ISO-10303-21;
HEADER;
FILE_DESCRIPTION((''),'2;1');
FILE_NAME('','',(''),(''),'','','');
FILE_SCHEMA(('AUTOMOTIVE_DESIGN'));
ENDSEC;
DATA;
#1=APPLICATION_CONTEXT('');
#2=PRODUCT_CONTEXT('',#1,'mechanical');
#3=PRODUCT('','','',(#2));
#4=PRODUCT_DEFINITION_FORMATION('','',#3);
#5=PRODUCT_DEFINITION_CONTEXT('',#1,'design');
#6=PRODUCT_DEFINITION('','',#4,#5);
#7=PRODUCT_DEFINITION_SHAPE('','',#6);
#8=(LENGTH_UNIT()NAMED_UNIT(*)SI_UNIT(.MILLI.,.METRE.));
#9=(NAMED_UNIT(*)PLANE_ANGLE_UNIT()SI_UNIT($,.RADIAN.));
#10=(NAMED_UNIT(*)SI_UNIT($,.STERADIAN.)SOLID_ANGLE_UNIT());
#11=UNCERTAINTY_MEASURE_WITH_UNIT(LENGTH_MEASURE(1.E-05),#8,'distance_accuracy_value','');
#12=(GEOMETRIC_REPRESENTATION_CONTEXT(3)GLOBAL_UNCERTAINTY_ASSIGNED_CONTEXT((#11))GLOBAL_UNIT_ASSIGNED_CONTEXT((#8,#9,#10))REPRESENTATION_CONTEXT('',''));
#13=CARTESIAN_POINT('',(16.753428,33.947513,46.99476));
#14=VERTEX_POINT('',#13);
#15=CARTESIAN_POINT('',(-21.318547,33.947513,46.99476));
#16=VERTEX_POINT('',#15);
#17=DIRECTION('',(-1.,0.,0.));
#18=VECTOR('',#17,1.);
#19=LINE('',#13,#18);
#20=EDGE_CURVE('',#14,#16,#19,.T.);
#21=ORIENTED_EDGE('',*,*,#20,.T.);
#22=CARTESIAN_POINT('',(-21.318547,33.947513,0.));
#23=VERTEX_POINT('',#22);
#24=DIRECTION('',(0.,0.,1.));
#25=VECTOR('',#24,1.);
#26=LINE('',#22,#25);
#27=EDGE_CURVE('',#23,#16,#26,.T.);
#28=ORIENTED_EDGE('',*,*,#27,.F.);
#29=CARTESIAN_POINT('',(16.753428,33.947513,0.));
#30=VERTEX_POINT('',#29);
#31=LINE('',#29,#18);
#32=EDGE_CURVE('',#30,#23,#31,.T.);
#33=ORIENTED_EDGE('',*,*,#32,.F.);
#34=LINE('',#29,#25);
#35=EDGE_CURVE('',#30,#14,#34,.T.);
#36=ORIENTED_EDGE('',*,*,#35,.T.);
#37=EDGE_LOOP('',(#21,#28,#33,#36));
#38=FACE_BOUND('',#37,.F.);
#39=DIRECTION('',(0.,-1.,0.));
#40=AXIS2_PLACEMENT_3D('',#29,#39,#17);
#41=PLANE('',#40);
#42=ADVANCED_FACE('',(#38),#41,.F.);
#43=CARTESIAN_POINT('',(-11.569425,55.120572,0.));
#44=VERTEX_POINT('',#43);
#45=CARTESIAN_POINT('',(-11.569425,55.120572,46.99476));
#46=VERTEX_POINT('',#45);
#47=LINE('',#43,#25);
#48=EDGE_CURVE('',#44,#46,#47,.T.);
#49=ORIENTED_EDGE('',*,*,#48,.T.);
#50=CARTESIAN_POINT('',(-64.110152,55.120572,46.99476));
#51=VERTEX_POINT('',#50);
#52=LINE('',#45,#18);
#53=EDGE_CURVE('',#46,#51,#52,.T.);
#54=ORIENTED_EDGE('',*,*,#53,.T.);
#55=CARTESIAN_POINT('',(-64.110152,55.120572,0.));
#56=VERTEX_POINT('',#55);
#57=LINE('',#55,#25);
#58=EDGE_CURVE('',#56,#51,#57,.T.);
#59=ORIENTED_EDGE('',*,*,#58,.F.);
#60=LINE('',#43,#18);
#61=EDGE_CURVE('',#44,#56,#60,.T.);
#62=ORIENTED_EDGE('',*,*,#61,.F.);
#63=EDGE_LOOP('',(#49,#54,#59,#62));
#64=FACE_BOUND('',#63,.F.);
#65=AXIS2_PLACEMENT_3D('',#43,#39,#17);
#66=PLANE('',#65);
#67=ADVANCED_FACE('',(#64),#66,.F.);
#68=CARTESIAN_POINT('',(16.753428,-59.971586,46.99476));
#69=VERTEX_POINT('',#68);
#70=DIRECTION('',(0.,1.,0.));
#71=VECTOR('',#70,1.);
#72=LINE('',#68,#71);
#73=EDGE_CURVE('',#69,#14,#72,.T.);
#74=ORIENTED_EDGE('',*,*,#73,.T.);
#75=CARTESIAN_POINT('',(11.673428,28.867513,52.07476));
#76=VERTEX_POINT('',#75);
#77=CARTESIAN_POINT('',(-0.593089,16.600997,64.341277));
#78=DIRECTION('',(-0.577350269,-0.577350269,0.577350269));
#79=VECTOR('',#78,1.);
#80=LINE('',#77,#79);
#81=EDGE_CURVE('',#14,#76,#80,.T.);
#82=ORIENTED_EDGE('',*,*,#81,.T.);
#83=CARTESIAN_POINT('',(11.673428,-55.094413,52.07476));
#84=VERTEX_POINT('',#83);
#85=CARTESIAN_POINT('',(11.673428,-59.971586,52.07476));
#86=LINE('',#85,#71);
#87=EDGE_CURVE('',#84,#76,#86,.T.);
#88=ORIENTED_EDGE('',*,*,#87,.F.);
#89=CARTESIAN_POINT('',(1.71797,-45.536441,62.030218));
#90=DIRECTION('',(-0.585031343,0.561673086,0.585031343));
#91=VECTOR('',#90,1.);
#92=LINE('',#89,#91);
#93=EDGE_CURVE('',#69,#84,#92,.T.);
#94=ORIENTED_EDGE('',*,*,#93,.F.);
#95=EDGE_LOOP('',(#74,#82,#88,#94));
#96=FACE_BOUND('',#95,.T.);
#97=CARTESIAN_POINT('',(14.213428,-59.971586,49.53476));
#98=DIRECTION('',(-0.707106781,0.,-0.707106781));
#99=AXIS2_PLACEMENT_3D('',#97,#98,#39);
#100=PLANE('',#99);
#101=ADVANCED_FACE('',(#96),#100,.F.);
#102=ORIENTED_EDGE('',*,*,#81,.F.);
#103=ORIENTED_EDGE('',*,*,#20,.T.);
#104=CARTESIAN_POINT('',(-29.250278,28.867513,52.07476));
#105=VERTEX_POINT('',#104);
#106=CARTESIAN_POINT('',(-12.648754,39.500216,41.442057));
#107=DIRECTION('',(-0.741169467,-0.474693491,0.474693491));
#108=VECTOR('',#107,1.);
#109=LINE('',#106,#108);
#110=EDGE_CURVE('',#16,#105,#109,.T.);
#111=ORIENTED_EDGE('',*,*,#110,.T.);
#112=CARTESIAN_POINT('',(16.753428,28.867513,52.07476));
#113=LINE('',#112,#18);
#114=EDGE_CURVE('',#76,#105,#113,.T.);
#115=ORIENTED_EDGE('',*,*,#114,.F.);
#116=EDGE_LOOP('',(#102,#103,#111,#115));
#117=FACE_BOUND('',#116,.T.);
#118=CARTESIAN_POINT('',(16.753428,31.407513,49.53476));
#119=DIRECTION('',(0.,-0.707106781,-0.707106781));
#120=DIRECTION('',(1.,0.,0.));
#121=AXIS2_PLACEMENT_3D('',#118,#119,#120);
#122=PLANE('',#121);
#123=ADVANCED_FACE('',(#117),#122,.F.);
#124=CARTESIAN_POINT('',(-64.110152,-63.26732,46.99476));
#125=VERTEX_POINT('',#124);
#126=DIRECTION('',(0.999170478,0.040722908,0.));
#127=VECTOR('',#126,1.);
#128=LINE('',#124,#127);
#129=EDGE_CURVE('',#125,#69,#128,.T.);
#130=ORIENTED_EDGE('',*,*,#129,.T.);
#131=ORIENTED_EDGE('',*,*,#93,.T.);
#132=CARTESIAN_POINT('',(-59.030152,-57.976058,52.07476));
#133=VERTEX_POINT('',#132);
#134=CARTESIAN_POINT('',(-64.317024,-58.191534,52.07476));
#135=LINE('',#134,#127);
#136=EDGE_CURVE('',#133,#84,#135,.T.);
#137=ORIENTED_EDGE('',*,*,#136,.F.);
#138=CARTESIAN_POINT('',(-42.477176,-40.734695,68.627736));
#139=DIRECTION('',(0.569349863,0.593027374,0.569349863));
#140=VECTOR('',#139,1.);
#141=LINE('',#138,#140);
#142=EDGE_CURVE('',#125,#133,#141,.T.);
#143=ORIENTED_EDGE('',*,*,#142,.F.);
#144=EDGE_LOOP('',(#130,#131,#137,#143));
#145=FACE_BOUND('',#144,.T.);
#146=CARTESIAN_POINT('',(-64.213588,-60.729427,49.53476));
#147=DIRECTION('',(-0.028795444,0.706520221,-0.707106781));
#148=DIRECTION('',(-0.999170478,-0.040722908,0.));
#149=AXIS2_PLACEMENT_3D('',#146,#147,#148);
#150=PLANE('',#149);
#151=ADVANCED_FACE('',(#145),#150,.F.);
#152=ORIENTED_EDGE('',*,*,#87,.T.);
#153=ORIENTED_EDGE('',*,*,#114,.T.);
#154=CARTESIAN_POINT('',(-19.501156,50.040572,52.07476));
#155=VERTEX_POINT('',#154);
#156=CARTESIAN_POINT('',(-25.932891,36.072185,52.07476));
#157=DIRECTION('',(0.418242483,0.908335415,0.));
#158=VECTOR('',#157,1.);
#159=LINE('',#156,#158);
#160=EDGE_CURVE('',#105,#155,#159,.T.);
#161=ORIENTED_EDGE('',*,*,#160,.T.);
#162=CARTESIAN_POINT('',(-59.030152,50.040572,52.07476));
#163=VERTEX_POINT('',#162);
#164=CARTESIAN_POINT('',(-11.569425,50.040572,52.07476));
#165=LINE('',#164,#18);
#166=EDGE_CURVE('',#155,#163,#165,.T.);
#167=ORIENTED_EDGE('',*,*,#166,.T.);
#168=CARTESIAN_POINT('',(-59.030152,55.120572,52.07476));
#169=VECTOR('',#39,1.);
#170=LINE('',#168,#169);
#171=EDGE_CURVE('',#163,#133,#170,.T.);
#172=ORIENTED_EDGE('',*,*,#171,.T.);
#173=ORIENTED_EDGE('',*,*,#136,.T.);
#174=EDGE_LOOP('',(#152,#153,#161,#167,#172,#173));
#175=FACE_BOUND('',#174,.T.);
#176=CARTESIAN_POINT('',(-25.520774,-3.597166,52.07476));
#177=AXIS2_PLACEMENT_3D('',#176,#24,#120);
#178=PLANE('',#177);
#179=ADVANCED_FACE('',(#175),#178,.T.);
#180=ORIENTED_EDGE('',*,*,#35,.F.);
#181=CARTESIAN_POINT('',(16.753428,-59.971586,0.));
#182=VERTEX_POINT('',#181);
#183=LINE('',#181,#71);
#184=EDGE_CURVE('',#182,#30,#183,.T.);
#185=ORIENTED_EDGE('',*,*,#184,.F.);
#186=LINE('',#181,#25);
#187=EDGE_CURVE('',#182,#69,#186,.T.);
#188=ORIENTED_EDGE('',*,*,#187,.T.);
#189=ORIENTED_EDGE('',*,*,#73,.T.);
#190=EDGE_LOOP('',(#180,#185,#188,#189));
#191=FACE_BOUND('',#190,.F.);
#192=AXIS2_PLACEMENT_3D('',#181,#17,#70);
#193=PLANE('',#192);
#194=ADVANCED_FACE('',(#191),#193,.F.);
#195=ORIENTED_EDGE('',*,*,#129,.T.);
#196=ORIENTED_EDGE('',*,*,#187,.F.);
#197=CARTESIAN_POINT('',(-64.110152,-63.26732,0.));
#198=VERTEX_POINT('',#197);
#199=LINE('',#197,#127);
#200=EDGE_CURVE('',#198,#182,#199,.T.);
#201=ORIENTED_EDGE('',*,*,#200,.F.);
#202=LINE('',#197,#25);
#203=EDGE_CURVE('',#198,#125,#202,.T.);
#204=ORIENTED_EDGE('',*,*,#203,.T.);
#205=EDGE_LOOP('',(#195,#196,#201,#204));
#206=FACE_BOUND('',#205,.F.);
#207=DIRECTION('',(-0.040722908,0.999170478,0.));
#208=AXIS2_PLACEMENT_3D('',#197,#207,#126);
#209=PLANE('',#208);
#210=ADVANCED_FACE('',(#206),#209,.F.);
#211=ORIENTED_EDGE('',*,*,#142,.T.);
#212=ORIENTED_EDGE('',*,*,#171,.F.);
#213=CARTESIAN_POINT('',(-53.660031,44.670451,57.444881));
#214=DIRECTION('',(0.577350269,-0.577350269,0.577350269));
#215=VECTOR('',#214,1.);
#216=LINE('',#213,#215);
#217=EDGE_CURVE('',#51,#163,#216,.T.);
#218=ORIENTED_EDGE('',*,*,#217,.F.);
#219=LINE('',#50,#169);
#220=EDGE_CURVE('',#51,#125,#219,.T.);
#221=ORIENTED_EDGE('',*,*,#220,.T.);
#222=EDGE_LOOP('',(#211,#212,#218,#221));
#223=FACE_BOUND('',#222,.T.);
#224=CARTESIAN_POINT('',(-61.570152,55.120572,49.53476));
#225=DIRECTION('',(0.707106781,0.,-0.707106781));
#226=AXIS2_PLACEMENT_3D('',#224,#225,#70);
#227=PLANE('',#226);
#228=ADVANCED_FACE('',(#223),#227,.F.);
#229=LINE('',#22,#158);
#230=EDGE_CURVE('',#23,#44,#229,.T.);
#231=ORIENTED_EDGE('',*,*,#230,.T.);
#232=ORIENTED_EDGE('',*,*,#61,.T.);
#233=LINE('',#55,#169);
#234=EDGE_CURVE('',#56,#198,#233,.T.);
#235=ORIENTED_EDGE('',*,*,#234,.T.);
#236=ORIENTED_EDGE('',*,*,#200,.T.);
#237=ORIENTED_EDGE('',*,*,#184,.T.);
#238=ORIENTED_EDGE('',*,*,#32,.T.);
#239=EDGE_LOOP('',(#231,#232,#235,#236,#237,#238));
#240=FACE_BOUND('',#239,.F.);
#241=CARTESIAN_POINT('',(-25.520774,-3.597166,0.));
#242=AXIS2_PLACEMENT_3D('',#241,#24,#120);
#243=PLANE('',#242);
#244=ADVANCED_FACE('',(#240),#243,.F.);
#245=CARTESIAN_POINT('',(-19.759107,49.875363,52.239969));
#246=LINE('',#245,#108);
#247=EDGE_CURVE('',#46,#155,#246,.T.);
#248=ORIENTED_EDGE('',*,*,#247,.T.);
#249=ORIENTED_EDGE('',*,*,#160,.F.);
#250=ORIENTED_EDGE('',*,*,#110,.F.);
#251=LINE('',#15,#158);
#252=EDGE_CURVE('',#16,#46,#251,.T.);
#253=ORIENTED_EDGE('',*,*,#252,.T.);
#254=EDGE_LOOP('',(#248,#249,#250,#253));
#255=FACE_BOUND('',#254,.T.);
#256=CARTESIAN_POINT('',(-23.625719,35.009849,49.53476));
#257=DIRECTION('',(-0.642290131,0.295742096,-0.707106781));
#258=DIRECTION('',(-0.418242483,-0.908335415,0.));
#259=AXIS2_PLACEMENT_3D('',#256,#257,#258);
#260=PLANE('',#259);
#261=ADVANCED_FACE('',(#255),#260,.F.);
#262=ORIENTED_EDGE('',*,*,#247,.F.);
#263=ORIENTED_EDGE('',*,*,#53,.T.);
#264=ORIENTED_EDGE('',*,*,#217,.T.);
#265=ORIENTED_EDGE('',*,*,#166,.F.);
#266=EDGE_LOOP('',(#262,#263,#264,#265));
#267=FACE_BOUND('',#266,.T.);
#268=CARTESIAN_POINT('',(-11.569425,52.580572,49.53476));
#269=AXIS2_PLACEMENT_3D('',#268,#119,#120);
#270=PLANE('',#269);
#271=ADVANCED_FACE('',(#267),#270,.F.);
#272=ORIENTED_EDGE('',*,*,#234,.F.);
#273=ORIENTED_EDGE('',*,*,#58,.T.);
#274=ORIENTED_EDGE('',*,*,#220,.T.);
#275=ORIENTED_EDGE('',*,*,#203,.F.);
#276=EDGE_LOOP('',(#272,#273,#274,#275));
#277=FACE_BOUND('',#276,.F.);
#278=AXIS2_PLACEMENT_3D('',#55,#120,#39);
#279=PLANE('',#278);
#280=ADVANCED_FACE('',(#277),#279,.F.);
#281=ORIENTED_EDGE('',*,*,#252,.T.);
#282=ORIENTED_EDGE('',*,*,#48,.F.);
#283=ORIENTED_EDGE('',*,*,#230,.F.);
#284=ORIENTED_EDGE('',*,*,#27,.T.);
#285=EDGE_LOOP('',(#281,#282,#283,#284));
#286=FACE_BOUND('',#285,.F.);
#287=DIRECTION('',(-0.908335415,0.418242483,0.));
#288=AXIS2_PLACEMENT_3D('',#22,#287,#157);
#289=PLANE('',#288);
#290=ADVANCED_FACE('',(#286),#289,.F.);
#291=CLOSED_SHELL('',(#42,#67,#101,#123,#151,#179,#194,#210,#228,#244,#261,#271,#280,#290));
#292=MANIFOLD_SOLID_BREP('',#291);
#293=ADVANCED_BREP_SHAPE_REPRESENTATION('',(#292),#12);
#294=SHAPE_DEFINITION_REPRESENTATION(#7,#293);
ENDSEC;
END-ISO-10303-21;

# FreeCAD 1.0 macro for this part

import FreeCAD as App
import Part
import Sketcher
Q = App.Units.Quantity


def edges_at(feature, points):
    """Names of the edges that pass closest to the given points."""
    edges = feature.Shape.Edges
    near = lambda p: min(range(len(edges)), key=lambda i: edges[i].distToShape(Part.Vertex(*p))[0])
    return sorted({f"Edge{near(p) + 1}" for p in points})

doc = App.newDocument("Part")
body = doc.addObject("PartDesign::Body", "Body")

# Sketch on XY plane
sketch1 = doc.addObject("Sketcher::SketchObject", "Sketch")
body.addObject(sketch1)
sketch1.AttachmentSupport = (doc.XY_Plane, [""])
sketch1.MapMode = "FlatFace"
sketch1.addGeometry([
    Part.LineSegment(App.Vector(-64, 55, 0), App.Vector(-64, -63, 0)),  # 0
    Part.LineSegment(App.Vector(-64, -63, 0), App.Vector(17, -60, 0)),  # 1
    Part.LineSegment(App.Vector(17, -60, 0), App.Vector(17, 34, 0)),  # 2
    Part.LineSegment(App.Vector(17, 34, 0), App.Vector(-21, 34, 0)),  # 3
    Part.LineSegment(App.Vector(-21, 34, 0), App.Vector(-12, 55, 0)),  # 4
    Part.LineSegment(App.Vector(-12, 55, 0), App.Vector(-64, 55, 0)),  # 5
], False)
sketch1.addConstraint([
    Sketcher.Constraint("Coincident", 0, 2, 1, 1),
    Sketcher.Constraint("Coincident", 1, 2, 2, 1),
    Sketcher.Constraint("Coincident", 2, 2, 3, 1),
    Sketcher.Constraint("Coincident", 3, 2, 4, 1),
    Sketcher.Constraint("Coincident", 4, 2, 5, 1),
    Sketcher.Constraint("Coincident", 5, 2, 0, 1),
    Sketcher.Constraint("Vertical", 0),
    Sketcher.Constraint("Vertical", 2),
    Sketcher.Constraint("Horizontal", 3),
    Sketcher.Constraint("Horizontal", 5),
    Sketcher.Constraint("DistanceY", 2, 1, 2, 2, Q("93.919099 mm")),
    Sketcher.Constraint("DistanceY", 0, 2, 0, 1, Q("118.387892 mm")),
    Sketcher.Constraint("DistanceX", 3, 2, 3, 1, Q("38.071975 mm")),
    Sketcher.Constraint("DistanceX", 5, 2, 5, 1, Q("52.540727 mm")),
    Sketcher.Constraint("DistanceX", 0, 2, -1, 1, Q("64.110152 mm")),
    Sketcher.Constraint("DistanceY", 0, 2, -1, 1, Q("63.26732 mm")),
    Sketcher.Constraint("DistanceX", 0, 2, 1, 2, Q("80.86358 mm")),
    Sketcher.Constraint("DistanceY", 3, 2, 4, 2, Q("21.173059 mm")),
])
pad1 = doc.addObject("PartDesign::Pad", "Pad")
body.addObject(pad1)
pad1.Profile = sketch1
pad1.Length = 52.07476
doc.recompute()

chamfer = doc.addObject("PartDesign::Chamfer", "Chamfer")
body.addObject(chamfer)
chamfer.Base = (pad1, edges_at(pad1, [
    (-23.678, -61.619, 52.075),
    (-64.11, -4.073, 52.075),
    (16.753, -13.012, 52.075),
    (-2.283, 33.948, 52.075),
    (-16.444, 44.534, 52.075),
    (-37.84, 55.121, 52.075),
]))
chamfer.Size = Q("0.2 in")

doc.recompute()
